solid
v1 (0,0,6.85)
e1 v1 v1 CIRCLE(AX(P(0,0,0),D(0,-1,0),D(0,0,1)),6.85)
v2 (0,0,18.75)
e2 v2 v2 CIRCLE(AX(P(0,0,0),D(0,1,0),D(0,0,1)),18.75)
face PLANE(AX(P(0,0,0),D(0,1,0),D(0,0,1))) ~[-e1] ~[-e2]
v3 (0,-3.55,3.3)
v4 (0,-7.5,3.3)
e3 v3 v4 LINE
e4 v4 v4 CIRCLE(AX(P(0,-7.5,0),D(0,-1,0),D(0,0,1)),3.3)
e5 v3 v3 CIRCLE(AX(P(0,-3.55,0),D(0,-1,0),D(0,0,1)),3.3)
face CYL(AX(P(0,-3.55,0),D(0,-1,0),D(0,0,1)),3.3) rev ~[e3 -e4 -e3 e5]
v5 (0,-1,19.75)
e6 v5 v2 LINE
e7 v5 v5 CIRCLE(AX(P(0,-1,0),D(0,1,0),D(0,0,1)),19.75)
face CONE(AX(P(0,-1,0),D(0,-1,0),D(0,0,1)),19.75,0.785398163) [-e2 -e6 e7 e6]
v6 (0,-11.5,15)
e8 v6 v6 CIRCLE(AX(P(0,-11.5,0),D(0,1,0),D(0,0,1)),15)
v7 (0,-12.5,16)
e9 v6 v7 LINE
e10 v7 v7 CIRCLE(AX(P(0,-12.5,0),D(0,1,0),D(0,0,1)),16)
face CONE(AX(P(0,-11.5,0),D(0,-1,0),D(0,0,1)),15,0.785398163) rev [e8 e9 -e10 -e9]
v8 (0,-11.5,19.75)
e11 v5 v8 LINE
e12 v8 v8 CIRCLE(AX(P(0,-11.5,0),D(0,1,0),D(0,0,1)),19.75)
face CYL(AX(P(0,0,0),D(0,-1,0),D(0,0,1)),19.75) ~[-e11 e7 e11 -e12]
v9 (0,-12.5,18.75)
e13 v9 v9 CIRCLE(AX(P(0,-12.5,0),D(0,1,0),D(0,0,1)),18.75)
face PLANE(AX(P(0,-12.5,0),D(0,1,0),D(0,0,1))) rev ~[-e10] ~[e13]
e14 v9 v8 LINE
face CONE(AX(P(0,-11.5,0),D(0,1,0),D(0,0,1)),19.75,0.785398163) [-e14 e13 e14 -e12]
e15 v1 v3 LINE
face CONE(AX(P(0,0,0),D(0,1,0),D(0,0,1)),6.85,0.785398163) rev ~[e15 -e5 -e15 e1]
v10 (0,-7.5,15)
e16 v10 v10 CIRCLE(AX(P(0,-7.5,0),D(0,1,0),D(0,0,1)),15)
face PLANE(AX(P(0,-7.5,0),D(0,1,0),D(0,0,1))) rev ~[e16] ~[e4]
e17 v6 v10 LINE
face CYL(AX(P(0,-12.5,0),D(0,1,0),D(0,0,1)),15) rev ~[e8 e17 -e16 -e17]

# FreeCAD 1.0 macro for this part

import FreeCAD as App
import Part
import Sketcher

V = App.Vector
Q = App.Units.Quantity


def edges_at(feature, points):
    """Names of the edges that pass closest to the given points."""
    edges = feature.Shape.Edges
    near = lambda p: min(range(len(edges)), key=lambda i: edges[i].distToShape(Part.Vertex(*p))[0])
    return sorted({f"Edge{near(p) + 1}" for p in points})


def add_polygon(sketch, points):
    """Adds a closed chain of lines whose ends are joined by coincident constraints."""
    first, n = sketch.GeometryCount, len(points)
    for a, b in zip(points, points[1:] + points[:1]):
        sketch.addGeometry(Part.LineSegment(App.Vector(*a, 0), App.Vector(*b, 0)), False)
    for i in range(n):
        sketch.addConstraint(Sketcher.Constraint("Coincident", first + i, 2, first + (i + 1) % n, 1))

doc = App.newDocument("Part")
body = doc.addObject("PartDesign::Body", "Body")

# Sketch on YZ plane
sketch1 = body.newObject("Sketcher::SketchObject", "Sketch")
sketch1.AttachmentSupport = (doc.getObject("YZ_Plane"), [""])
sketch1.MapMode = "FlatFace"
add_polygon(sketch1, [(-7.5, 15), (-7.5, 0), (0, 0), (0, 19.8), (-12.5, 19.8), (-12.5, 15)])  # lines 0-5
sketch1.addConstraint(Sketcher.Constraint("Vertical", 0))
sketch1.addConstraint(Sketcher.Constraint("Horizontal", 1))
sketch1.addConstraint(Sketcher.Constraint("Vertical", 2))
sketch1.addConstraint(Sketcher.Constraint("Horizontal", 3))
sketch1.addConstraint(Sketcher.Constraint("Vertical", 4))
sketch1.addConstraint(Sketcher.Constraint("Horizontal", 5))
sketch1.addConstraint(Sketcher.Constraint("Coincident", 1, 2, -1, 1))
sketch1.addConstraint(Sketcher.Constraint("DistanceX", 5, 1, 5, 2, Q("5 mm")))
sketch1.addConstraint(Sketcher.Constraint("DistanceX", 3, 2, 3, 1, Q("12.5 mm")))
sketch1.addConstraint(Sketcher.Constraint("DistanceY", 0, 2, 0, 1, Q("15 mm")))
sketch1.addConstraint(Sketcher.Constraint("DistanceY", 2, 1, 2, 2, Q("19.75 mm")))
revolution = body.newObject("PartDesign::Revolution", "Revolution")
revolution.Profile = sketch1
revolution.ReferenceAxis = (sketch1, ["H_Axis"])
revolution.Angle = 360

# Sketch on XZ plane
sketch2 = body.newObject("Sketcher::SketchObject", "Sketch001")
sketch2.AttachmentSupport = (doc.getObject("XZ_Plane"), [""])
sketch2.MapMode = "FlatFace"
sketch2.addGeometry(Part.Circle(V(0, 0, 0), V(0, 0, 1), 3.3), False)
sketch2.addConstraint(Sketcher.Constraint("Coincident", 0, 3, -1, 1))
sketch2.addConstraint(Sketcher.Constraint("Diameter", 0, Q("6.6 mm")))
doc.recompute()
hole = body.newObject("PartDesign::Hole", "Hole")
hole.Profile = sketch2
hole.ThreadType = "None"
hole.Diameter = 6.6
hole.DepthType = "ThroughAll"
hole.HoleCutType = "Countersink"
hole.HoleCutDiameter = 13.7
hole.HoleCutCountersinkAngle = 90
hole.Reversed = True
doc.recompute()

chamfer = body.newObject("PartDesign::Chamfer", "Chamfer")
chamfer.Base = (hole, edges_at(hole, [(0, -12.5, -15), (0, -12.5, -19.75), (0, 0, -19.75)]))
chamfer.Size = 1

doc.recompute()
